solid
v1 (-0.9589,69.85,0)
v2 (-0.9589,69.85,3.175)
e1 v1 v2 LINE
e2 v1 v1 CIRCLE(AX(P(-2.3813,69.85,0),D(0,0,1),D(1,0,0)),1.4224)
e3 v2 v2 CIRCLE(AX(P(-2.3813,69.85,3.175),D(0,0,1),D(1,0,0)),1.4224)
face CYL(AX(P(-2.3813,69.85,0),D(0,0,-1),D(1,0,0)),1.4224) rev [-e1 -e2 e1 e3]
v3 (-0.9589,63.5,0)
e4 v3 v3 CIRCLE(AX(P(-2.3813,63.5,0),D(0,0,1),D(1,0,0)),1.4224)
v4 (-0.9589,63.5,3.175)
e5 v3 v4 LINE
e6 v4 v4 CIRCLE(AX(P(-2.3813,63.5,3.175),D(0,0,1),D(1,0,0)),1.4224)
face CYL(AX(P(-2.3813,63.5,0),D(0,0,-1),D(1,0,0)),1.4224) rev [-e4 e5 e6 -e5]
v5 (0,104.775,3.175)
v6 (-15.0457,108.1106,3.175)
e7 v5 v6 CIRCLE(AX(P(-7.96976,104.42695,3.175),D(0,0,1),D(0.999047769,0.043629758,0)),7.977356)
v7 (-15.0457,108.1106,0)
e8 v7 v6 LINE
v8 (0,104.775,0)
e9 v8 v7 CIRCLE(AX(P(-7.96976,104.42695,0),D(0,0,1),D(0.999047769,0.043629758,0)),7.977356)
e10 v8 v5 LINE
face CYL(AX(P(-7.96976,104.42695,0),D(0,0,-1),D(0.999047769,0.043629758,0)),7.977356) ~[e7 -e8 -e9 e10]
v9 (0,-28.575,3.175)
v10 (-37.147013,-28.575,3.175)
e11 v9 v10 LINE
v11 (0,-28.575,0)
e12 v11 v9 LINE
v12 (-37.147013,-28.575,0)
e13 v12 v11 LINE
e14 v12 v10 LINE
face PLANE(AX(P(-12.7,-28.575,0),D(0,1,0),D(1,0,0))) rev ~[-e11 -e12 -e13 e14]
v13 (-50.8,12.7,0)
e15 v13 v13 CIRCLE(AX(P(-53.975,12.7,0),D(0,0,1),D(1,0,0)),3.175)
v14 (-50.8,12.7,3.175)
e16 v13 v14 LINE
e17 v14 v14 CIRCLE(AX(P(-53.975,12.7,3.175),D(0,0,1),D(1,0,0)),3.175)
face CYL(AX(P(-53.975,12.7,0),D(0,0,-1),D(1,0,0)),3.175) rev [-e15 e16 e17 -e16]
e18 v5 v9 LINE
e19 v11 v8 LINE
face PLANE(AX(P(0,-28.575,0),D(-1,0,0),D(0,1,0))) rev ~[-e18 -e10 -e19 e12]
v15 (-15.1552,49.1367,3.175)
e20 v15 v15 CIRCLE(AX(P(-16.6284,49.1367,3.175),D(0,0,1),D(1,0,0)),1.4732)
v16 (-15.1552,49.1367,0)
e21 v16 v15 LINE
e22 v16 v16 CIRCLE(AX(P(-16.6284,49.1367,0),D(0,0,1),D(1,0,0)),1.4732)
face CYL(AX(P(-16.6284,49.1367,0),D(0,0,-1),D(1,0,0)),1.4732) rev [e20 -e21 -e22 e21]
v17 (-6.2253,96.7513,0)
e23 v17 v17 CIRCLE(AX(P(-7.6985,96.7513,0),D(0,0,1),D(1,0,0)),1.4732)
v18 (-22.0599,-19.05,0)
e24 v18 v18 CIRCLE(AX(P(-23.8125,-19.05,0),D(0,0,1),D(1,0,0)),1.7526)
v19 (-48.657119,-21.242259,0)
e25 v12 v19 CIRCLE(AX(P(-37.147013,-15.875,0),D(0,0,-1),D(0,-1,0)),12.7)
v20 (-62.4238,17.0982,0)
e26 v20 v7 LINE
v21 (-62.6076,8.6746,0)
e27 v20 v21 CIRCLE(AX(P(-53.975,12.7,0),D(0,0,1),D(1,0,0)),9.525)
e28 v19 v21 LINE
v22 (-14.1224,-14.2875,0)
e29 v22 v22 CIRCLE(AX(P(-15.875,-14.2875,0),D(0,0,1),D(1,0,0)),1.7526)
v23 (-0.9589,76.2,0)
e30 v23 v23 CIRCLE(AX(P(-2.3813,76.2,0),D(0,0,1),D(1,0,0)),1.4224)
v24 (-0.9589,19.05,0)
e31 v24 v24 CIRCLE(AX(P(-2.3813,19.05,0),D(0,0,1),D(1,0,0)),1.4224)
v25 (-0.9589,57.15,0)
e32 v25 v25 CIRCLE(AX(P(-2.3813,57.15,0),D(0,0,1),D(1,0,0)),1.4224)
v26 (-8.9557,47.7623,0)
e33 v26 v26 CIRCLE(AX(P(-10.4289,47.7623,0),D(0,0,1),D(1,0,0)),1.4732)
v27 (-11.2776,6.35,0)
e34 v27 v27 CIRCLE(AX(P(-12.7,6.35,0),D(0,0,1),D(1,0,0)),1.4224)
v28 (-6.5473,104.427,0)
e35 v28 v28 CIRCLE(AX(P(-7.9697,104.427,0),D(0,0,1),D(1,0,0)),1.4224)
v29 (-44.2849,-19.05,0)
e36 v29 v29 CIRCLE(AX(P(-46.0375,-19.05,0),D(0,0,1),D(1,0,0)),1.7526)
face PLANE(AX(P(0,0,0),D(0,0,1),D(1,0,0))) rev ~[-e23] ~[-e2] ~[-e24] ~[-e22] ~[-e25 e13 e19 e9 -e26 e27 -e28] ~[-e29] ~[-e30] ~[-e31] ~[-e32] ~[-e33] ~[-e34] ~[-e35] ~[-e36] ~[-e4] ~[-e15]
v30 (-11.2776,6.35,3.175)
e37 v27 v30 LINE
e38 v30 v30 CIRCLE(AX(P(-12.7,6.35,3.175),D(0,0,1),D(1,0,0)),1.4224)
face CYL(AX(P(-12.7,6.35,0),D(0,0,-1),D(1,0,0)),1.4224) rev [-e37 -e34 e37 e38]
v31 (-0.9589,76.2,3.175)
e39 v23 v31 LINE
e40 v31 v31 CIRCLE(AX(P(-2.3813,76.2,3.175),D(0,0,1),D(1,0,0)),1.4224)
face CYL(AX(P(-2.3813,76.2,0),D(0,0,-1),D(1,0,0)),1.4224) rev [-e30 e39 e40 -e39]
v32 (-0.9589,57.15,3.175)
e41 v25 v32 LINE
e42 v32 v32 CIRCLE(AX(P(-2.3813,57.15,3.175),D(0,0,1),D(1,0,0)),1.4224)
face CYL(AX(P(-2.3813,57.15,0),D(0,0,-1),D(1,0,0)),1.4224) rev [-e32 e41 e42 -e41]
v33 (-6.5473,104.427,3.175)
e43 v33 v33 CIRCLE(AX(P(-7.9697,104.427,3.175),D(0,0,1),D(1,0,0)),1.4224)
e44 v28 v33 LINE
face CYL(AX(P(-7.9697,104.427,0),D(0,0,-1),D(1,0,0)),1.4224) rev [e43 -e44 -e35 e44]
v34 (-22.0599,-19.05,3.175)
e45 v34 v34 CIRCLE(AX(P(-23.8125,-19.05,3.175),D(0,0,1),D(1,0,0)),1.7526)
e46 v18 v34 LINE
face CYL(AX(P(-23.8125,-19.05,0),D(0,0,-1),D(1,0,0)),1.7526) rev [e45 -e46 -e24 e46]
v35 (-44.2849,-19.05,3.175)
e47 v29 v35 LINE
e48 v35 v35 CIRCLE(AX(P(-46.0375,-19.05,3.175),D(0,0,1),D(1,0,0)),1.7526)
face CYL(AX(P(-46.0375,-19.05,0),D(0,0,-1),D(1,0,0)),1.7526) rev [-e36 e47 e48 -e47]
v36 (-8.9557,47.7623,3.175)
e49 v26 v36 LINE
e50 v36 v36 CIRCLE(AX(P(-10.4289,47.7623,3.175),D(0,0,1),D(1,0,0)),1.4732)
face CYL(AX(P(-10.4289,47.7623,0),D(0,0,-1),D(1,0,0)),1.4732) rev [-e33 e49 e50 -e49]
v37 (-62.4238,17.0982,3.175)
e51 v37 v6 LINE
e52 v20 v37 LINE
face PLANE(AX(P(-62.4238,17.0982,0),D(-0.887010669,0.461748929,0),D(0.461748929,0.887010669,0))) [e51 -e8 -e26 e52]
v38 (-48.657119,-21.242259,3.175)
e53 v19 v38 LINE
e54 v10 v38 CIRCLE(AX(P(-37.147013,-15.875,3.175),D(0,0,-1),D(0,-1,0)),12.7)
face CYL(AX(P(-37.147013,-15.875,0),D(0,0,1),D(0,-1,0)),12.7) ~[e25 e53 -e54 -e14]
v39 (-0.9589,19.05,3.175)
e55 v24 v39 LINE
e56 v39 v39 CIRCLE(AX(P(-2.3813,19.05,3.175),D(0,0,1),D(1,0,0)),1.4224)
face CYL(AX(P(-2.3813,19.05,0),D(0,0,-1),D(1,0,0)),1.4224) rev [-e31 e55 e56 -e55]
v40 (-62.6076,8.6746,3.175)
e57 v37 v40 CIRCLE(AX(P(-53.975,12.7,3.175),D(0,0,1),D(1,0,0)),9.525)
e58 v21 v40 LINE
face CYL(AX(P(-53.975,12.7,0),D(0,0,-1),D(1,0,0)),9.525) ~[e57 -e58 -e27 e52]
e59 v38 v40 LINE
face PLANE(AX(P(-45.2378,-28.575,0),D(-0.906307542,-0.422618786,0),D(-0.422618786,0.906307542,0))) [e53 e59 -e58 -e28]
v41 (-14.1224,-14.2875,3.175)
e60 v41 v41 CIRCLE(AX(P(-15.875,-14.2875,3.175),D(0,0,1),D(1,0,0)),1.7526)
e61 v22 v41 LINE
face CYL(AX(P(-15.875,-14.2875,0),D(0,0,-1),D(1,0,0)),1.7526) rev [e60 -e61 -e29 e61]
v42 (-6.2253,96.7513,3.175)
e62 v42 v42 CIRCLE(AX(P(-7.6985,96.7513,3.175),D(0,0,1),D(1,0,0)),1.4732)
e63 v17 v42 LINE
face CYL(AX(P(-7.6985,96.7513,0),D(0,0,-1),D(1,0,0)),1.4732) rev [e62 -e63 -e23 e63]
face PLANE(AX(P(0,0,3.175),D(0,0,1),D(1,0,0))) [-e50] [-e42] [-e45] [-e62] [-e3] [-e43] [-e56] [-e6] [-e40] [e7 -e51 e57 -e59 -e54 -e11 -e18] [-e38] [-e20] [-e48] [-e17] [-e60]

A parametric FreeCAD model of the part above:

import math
import FreeCAD as App
import Part
import Sketcher

V = App.Vector
Q = App.Units.Quantity


def edges_at(feature, points):
    """Names of the edges that pass closest to the given points."""
    edges = feature.Shape.Edges
    near = lambda p: min(range(len(edges)), key=lambda i: edges[i].distToShape(Part.Vertex(*p))[0])
    return sorted({f"Edge{near(p) + 1}" for p in points})

doc = App.newDocument("Part")
body = doc.addObject("PartDesign::Body", "Body")

sketch1 = body.newObject("Sketcher::SketchObject", "Sketch")
sketch1.AttachmentSupport = (doc.getObject("XY_Plane"), [""])
sketch1.MapMode = "FlatFace"
sketch1.addGeometry(Part.LineSegment(V(0, -28.6, 0), V(0, 104.8, 0)), False)
sketch1.addGeometry(Part.ArcOfCircle(Part.Circle(V(-8, 104.4, 0), V(0, 0, 1), 8), math.radians(3), math.radians(152)), False)
sketch1.addGeometry(Part.LineSegment(V(-15, 108.1, 0), V(-62.4, 17.1, 0)), False)
sketch1.addGeometry(Part.ArcOfCircle(Part.Circle(V(-54, 12.7, 0), V(0, 0, 1), 9.5), math.radians(152), math.radians(205)), False)
sketch1.addGeometry(Part.LineSegment(V(-62.6, 8.7, 0), V(-45.2, -28.6, 0)), False)
sketch1.addGeometry(Part.LineSegment(V(-45.2, -28.6, 0), V(0, -28.6, 0)), False)
sketch1.addGeometry(Part.Circle(V(-16.6, 49.1, 0), V(0, 0, 1), 1.5), False)
sketch1.addGeometry(Part.Circle(V(-2.4, 19.1, 0), V(0, 0, 1), 1.4), False)
sketch1.addGeometry(Part.Circle(V(-10.4, 47.8, 0), V(0, 0, 1), 1.5), False)
sketch1.addGeometry(Part.Circle(V(-46, -19.1, 0), V(0, 0, 1), 1.8), False)
sketch1.addGeometry(Part.Circle(V(-23.8, -19.1, 0), V(0, 0, 1), 1.8), False)
sketch1.addGeometry(Part.Circle(V(-15.9, -14.3, 0), V(0, 0, 1), 1.8), False)
sketch1.addGeometry(Part.Circle(V(-12.7, 6.3, 0), V(0, 0, 1), 1.4), False)
sketch1.addGeometry(Part.Circle(V(-54, 12.7, 0), V(0, 0, 1), 3.2), False)
sketch1.addGeometry(Part.Circle(V(-8, 104.4, 0), V(0, 0, 1), 1.4), False)
sketch1.addGeometry(Part.Circle(V(-7.7, 96.8, 0), V(0, 0, 1), 1.5), False)
sketch1.addGeometry(Part.Circle(V(-2.4, 76.2, 0), V(0, 0, 1), 1.4), False)
sketch1.addGeometry(Part.Circle(V(-2.4, 57.1, 0), V(0, 0, 1), 1.4), False)
sketch1.addGeometry(Part.Circle(V(-2.4, 63.5, 0), V(0, 0, 1), 1.4), False)
sketch1.addGeometry(Part.Circle(V(-2.4, 69.8, 0), V(0, 0, 1), 1.4), False)
sketch1.addConstraint(Sketcher.Constraint("Coincident", 0, 2, 1, 1))
sketch1.addConstraint(Sketcher.Constraint("Tangent", 1, 2, 2, 1))
sketch1.addConstraint(Sketcher.Constraint("Tangent", 2, 2, 3, 1))
sketch1.addConstraint(Sketcher.Constraint("Tangent", 3, 2, 4, 1))
sketch1.addConstraint(Sketcher.Constraint("Coincident", 4, 2, 5, 1))
sketch1.addConstraint(Sketcher.Constraint("Coincident", 5, 2, 0, 1))
sketch1.addConstraint(Sketcher.Constraint("Vertical", 0))
sketch1.addConstraint(Sketcher.Constraint("Horizontal", 5))
sketch1.addConstraint(Sketcher.Constraint("Coincident", 13, 3, 3, 3))
sketch1.addConstraint(Sketcher.Constraint("Coincident", 14, 3, 1, 3))
sketch1.addConstraint(Sketcher.Constraint("Equal", 6, 8))
sketch1.addConstraint(Sketcher.Constraint("Equal", 9, 10))
sketch1.addConstraint(Sketcher.Constraint("Equal", 10, 11))
sketch1.addConstraint(Sketcher.Constraint("Equal", 7, 12))
sketch1.addConstraint(Sketcher.Constraint("Equal", 12, 14))
sketch1.addConstraint(Sketcher.Constraint("Equal", 8, 15))
sketch1.addConstraint(Sketcher.Constraint("Equal", 14, 16))
sketch1.addConstraint(Sketcher.Constraint("Equal", 16, 17))
sketch1.addConstraint(Sketcher.Constraint("Equal", 17, 18))
sketch1.addConstraint(Sketcher.Constraint("Equal", 18, 19))
sketch1.addConstraint(Sketcher.Constraint("PointOnObject", 0, 2, -2))
sketch1.addConstraint(Sketcher.Constraint("Horizontal", 9, 3, 10, 3))
sketch1.addConstraint(Sketcher.Constraint("Vertical", 7, 3, 16, 3))
sketch1.addConstraint(Sketcher.Constraint("Vertical", 16, 3, 17, 3))
sketch1.addConstraint(Sketcher.Constraint("Vertical", 17, 3, 18, 3))
sketch1.addConstraint(Sketcher.Constraint("Vertical", 18, 3, 19, 3))
sketch1.addConstraint(Sketcher.Constraint("Diameter", 13, Q("0.25 in")))
sketch1.addConstraint(Sketcher.Constraint("Diameter", 6, Q("0.116 in")))
sketch1.addConstraint(Sketcher.Constraint("Diameter", 7, Q("0.112 in")))
sketch1.addConstraint(Sketcher.Constraint("Diameter", 9, Q("0.138 in")))
sketch1.addConstraint(Sketcher.Constraint("Radius", 3, Q("0.375 in")))
sketch1.addConstraint(Sketcher.Constraint("DistanceY", 10, 3, 12, 3, Q("1 in")))
sketch1.addConstraint(Sketcher.Constraint("DistanceY", -1, 1, 3, 3, Q("0.5 in")))
sketch1.addConstraint(Sketcher.Constraint("DistanceX", 12, 3, -1, 1, Q("0.5 in")))
sketch1.addConstraint(Sketcher.Constraint("DistanceY", -1, 1, 18, 3, Q("2.5 in")))
sketch1.addConstraint(Sketcher.Constraint("DistanceY", 12, 3, 7, 3, Q("0.5 in")))
sketch1.addConstraint(Sketcher.Constraint("DistanceY", 18, 3, 16, 3, Q("0.5 in")))
sketch1.addConstraint(Sketcher.Constraint("DistanceY", 17, 3, 19, 3, Q("0.5 in")))
sketch1.addConstraint(Sketcher.Constraint("DistanceY", -1, 1, 7, 3, Q("0.75 in")))
sketch1.addConstraint(Sketcher.Constraint("DistanceY", -1, 1, 17, 3, Q("2.25 in")))
sketch1.addConstraint(Sketcher.Constraint("DistanceX", 3, 3, -1, 1, Q("2.125 in")))
sketch1.addConstraint(Sketcher.Constraint("DistanceX", 7, 3, -1, 1, Q("0.093752 in")))
sketch1.addConstraint(Sketcher.Constraint("DistanceY", 11, 3, -1, 1, Q("0.5625 in")))
sketch1.addConstraint(Sketcher.Constraint("DistanceY", -1, 1, 0, 2, Q("4.125 in")))
sketch1.addConstraint(Sketcher.Constraint("DistanceY", 4, 2, -1, 1, Q("1.125 in")))
sketch1.addConstraint(Sketcher.Constraint("Angle", 4, Q("-65 deg")))
sketch1.addConstraint(Sketcher.Constraint("DistanceX", 3, 3, 9, 3, Q("0.3125 in")))
sketch1.addConstraint(Sketcher.Constraint("DistanceX", 10, 3, 11, 3, Q("0.3125 in")))
sketch1.addConstraint(Sketcher.Constraint("DistanceX", 11, 3, 12, 3, Q("0.125 in")))
sketch1.addConstraint(Sketcher.Constraint("Angle", 2, Q("-117.5 deg")))
sketch1.addConstraint(Sketcher.Constraint("Radius", 1, 7.9773))
sketch1.addConstraint(Sketcher.Constraint("DistanceY", -1, 1, 8, 3, Q("1.8804 in")))
sketch1.addConstraint(Sketcher.Constraint("DistanceX", 15, 3, -1, 1, Q("0.3031 in")))
sketch1.addConstraint(Sketcher.Constraint("DistanceY", -1, 1, 15, 3, Q("3.8091 in")))
sketch1.addConstraint(Sketcher.Constraint("DistanceX", 6, 3, 1, 3, Q("0.3409 in")))
sketch1.addConstraint(Sketcher.Constraint("DistanceY", 8, 3, 6, 3, Q("0.0541 in")))
sketch1.addConstraint(Sketcher.Constraint("DistanceX", 8, 3, 15, 3, Q("0.1075 in")))
pad1 = body.newObject("PartDesign::Pad", "Pad")
pad1.Profile = sketch1
pad1.Length = Q("0.125 in")
doc.recompute()

fillet = body.newObject("PartDesign::Fillet", "Fillet")
fillet.Base = (pad1, edges_at(pad1, [(-45.238, -28.575, 1.587)]))
fillet.Radius = Q("0.5 in")

doc.recompute()
